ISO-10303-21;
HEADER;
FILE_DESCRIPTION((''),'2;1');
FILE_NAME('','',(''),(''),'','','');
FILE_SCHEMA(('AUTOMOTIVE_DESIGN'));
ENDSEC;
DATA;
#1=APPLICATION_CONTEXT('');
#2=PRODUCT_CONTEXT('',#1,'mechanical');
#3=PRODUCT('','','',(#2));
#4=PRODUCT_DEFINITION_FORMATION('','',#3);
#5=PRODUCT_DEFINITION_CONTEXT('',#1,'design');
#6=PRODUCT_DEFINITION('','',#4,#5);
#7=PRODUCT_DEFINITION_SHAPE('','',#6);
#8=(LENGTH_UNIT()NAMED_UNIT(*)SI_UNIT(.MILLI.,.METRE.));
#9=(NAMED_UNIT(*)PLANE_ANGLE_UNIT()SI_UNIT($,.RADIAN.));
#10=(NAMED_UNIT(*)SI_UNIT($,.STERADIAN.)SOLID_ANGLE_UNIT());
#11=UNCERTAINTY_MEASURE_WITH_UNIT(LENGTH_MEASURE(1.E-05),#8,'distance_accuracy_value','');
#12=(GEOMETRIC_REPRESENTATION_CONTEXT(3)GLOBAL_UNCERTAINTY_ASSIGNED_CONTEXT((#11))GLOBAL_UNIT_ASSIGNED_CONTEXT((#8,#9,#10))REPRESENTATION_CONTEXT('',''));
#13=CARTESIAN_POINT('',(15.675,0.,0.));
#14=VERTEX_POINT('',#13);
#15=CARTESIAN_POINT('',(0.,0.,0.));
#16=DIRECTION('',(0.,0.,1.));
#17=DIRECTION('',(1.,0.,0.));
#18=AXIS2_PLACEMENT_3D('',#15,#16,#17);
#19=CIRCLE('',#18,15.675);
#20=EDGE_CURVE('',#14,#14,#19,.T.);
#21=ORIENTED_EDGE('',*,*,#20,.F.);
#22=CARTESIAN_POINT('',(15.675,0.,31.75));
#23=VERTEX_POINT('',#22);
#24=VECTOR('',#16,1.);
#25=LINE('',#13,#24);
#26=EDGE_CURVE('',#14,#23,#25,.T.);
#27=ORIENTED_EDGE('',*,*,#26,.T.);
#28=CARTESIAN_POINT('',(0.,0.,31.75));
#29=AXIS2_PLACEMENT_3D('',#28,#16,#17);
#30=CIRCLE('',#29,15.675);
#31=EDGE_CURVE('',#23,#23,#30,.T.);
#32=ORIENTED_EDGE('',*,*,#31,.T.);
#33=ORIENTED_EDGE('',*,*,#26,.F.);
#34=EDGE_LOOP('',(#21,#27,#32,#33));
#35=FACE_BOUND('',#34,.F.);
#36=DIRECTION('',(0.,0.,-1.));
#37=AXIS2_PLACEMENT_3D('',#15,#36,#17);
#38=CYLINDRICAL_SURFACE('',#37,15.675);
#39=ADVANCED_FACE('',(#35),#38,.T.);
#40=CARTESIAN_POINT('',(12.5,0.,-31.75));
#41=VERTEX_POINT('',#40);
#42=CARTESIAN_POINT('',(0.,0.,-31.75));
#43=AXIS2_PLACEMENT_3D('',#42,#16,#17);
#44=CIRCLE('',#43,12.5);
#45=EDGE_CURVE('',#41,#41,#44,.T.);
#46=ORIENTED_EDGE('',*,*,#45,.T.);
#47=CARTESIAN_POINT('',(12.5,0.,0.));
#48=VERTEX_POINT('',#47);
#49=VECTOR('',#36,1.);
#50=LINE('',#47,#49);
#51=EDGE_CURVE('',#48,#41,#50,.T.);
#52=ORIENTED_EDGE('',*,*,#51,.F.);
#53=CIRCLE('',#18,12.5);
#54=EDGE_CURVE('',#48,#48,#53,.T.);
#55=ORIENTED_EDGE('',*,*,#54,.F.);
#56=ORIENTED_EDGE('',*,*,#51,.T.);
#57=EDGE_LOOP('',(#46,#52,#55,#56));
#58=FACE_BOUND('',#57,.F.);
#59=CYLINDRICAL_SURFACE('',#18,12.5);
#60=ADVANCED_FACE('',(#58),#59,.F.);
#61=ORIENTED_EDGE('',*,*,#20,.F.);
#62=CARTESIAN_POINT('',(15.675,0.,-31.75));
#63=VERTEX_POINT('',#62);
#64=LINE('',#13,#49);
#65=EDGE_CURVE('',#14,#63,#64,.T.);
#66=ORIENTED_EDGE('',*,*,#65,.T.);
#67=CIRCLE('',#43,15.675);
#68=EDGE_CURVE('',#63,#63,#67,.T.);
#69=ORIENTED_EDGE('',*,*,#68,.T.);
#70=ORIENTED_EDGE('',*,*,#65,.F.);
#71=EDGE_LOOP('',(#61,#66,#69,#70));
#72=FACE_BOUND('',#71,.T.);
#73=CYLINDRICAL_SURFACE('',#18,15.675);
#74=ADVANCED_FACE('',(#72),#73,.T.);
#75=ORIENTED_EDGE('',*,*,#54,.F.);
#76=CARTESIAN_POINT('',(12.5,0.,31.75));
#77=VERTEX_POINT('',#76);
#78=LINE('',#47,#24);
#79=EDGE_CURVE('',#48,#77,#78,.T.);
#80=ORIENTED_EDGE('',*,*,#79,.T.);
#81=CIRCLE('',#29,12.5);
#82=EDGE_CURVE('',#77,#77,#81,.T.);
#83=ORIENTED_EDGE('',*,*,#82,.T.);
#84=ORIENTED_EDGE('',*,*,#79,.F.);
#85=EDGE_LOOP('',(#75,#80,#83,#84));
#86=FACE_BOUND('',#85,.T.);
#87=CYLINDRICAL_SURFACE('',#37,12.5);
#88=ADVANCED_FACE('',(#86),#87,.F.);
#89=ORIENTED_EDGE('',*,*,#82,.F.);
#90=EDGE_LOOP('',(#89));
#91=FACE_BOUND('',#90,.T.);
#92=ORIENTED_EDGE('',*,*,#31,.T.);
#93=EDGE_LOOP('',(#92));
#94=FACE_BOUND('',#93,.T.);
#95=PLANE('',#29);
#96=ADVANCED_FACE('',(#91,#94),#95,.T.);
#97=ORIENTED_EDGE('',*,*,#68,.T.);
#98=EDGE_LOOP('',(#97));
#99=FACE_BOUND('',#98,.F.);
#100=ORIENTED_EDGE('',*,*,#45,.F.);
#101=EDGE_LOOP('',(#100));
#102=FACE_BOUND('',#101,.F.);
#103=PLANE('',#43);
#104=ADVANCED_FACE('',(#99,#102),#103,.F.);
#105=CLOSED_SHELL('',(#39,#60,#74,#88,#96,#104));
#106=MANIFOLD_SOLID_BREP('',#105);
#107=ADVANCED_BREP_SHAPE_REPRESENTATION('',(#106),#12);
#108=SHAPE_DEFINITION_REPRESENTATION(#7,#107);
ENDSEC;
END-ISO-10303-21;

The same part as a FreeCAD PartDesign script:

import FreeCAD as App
import Part
import Sketcher
from FreeCAD import Vector

doc = App.newDocument("Part")
body = doc.addObject("PartDesign::Body", "Body")

# Sketch on XY plane
sketch1 = body.newObject("Sketcher::SketchObject", "Sketch")
sketch1.AttachmentSupport = (doc.getObject("XY_Plane"), [""])
sketch1.MapMode = "FlatFace"
sketch1.addGeometry([
    Part.Circle(Vector(0, 0, 0), Vector(0, 0, 1), 16),
    Part.Circle(Vector(0, 0, 0), Vector(0, 0, 1), 12),
], False)
sketch1.addConstraint([
    Sketcher.Constraint("Coincident", 0, 3, -1, 1),
    Sketcher.Constraint("Coincident", 1, 3, -1, 1),
    Sketcher.Constraint("Diameter", 1, 25.0),
    Sketcher.Constraint("Diameter", 0, 31.35),
])
pad1 = body.newObject("PartDesign::Pad", "Pad")
pad1.Profile = sketch1
pad1.Length = 63.5
pad1.Midplane = True

doc.recompute()
